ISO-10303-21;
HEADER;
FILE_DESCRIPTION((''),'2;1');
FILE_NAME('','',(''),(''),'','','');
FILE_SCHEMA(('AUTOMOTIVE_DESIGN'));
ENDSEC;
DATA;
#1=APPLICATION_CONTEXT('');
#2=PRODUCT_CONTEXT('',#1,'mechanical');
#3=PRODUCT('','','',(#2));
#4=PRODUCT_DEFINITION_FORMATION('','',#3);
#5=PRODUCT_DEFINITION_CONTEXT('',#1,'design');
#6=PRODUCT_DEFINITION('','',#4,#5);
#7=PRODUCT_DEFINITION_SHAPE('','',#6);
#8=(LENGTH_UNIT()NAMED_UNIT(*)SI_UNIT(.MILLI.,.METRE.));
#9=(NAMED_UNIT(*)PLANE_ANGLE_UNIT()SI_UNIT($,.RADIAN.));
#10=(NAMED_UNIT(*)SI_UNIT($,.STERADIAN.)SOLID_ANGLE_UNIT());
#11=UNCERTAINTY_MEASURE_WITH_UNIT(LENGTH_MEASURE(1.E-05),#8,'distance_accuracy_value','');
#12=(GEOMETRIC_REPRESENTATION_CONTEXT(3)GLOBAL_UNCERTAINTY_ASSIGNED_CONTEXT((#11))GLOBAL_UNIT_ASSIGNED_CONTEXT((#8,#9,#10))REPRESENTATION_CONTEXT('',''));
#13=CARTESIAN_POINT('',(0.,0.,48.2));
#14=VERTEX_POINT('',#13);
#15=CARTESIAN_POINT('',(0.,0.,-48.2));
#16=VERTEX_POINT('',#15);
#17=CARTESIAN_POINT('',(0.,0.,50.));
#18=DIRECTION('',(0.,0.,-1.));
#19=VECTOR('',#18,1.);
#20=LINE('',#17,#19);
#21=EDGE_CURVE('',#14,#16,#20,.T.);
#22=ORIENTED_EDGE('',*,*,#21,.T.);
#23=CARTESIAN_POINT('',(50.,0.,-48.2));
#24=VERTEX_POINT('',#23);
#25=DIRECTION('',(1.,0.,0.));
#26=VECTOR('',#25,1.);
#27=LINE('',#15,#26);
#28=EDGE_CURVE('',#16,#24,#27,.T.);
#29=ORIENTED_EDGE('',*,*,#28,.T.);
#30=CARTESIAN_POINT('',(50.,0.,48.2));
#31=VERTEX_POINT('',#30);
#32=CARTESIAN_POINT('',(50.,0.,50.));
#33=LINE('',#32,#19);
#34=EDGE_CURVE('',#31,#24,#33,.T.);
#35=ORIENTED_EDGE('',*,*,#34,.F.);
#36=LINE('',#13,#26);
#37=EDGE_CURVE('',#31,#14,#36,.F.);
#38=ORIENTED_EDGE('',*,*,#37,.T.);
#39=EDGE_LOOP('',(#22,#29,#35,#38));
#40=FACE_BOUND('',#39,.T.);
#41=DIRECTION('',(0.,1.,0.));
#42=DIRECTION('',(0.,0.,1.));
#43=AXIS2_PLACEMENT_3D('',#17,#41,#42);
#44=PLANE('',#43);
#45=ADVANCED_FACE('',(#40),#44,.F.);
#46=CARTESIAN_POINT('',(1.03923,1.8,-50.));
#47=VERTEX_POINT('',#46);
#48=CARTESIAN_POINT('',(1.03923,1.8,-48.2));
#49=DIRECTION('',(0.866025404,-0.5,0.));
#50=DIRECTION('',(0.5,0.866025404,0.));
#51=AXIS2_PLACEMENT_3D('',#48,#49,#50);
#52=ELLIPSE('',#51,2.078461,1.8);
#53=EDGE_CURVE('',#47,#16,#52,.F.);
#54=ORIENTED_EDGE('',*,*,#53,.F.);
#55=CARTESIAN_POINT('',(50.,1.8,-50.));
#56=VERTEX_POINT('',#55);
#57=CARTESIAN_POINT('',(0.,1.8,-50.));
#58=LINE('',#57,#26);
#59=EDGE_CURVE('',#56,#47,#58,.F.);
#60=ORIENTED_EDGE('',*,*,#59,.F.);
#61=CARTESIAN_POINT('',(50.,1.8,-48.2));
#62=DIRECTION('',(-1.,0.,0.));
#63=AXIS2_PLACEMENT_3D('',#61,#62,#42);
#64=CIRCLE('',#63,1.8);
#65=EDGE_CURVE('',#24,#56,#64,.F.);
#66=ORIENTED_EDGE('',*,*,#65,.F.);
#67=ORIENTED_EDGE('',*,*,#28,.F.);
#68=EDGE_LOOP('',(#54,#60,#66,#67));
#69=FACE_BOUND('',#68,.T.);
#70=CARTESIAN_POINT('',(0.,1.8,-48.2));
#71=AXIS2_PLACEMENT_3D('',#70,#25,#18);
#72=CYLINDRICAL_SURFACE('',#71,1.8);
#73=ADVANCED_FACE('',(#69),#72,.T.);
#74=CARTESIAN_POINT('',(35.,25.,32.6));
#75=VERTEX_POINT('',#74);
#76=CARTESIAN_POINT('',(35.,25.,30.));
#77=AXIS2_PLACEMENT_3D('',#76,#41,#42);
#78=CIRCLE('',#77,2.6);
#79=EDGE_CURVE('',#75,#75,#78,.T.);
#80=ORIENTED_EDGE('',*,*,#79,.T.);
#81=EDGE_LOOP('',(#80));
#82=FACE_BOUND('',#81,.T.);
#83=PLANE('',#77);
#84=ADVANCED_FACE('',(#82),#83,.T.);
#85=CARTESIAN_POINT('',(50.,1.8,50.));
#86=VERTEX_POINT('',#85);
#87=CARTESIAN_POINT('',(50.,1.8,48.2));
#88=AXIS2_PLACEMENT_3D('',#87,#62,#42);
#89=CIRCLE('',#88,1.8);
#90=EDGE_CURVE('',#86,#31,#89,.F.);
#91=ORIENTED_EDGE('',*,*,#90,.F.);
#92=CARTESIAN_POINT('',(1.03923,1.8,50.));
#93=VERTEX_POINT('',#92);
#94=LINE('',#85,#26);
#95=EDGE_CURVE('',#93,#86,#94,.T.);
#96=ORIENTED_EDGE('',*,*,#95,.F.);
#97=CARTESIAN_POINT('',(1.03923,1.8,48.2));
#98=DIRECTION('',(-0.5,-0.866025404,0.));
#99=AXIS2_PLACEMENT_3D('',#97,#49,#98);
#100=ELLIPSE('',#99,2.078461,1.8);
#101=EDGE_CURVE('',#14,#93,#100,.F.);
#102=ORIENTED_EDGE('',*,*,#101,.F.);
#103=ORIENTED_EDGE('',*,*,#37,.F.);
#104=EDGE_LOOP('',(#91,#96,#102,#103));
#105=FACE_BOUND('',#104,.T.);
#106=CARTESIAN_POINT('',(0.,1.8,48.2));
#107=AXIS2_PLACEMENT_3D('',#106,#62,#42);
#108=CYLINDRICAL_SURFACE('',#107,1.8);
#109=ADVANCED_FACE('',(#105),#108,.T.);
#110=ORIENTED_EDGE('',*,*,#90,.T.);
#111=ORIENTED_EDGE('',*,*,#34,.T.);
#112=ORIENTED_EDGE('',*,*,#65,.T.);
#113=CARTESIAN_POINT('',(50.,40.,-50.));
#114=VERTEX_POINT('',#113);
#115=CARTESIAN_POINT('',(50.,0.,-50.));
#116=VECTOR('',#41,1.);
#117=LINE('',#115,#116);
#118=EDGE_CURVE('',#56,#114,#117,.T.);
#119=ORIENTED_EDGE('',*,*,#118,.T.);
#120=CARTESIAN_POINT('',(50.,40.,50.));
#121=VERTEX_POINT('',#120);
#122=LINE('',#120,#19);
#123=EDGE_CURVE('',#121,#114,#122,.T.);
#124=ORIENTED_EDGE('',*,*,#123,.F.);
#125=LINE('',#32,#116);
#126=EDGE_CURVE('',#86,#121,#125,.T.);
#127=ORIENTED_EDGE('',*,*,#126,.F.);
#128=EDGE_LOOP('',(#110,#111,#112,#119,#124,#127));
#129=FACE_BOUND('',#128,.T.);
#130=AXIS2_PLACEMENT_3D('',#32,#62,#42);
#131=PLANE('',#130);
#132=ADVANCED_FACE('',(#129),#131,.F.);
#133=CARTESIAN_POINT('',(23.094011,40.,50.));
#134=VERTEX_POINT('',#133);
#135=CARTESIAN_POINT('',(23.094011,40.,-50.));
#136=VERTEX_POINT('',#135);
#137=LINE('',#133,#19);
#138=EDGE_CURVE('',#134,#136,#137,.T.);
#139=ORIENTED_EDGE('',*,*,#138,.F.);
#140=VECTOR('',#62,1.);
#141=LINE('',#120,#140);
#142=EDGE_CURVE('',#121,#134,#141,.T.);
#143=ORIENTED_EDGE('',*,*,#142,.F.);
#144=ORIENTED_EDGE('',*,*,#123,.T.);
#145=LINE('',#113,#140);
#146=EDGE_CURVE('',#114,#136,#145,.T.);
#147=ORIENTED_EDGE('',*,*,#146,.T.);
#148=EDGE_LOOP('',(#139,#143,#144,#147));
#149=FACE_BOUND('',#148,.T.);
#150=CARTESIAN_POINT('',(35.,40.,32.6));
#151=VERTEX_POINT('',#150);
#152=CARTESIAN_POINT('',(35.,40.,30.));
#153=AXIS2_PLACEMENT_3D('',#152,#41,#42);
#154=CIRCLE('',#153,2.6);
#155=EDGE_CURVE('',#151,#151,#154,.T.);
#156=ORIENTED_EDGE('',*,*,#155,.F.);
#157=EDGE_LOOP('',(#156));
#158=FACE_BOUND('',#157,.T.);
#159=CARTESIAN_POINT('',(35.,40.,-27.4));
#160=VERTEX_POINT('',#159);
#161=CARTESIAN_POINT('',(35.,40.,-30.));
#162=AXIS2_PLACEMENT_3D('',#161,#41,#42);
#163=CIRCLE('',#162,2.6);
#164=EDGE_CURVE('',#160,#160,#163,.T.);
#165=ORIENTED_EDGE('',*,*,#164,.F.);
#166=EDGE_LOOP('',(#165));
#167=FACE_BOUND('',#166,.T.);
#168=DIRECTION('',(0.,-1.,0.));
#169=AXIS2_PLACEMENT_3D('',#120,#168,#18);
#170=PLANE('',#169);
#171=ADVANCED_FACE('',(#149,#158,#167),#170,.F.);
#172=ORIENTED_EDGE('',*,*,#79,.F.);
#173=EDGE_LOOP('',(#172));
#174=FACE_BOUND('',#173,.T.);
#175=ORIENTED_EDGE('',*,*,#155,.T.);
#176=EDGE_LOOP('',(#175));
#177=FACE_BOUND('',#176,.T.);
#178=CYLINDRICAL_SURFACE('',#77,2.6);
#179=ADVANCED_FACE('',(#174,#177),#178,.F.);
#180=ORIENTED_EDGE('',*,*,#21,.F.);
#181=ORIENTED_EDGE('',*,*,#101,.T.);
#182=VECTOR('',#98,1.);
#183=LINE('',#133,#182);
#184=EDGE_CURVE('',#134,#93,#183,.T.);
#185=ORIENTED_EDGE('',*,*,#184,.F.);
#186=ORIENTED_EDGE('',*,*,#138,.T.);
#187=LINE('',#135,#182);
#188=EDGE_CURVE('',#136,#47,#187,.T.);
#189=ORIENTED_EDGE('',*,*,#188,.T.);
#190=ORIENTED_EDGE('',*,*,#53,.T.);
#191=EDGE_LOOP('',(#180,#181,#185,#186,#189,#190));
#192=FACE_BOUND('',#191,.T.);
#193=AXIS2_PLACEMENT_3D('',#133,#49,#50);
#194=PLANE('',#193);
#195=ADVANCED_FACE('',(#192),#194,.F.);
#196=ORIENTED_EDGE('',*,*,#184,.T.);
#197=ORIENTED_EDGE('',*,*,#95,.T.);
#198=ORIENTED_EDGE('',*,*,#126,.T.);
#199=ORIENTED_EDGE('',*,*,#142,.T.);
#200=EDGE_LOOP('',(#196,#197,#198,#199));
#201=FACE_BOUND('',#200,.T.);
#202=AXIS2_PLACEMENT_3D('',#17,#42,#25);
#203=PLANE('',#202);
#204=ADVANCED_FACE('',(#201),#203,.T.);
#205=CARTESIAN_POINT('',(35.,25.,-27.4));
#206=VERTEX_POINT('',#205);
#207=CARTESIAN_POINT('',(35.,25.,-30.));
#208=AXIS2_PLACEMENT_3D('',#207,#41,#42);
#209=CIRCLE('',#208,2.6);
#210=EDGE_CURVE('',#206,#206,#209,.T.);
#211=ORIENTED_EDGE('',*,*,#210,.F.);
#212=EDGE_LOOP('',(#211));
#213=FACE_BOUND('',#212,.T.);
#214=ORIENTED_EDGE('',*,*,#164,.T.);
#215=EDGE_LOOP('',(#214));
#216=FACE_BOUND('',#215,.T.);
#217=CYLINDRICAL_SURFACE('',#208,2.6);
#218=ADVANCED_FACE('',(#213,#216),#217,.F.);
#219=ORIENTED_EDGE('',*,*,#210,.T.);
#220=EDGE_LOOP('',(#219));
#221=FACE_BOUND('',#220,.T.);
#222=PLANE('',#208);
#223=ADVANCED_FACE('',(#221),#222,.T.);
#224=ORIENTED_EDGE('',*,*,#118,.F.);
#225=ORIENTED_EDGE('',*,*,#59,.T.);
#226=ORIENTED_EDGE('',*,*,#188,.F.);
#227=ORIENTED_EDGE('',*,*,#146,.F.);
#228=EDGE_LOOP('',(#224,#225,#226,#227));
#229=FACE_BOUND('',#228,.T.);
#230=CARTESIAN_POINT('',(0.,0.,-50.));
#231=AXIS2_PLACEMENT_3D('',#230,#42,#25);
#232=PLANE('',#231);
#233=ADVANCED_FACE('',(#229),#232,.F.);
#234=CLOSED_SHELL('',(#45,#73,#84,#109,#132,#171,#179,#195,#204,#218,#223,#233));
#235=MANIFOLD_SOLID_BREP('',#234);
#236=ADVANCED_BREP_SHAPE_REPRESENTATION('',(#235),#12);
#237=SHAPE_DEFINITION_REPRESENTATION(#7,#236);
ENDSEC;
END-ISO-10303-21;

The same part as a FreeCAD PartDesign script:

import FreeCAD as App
import Part
import Sketcher

V = App.Vector
Q = App.Units.Quantity


def edges_at(feature, points):
    """Names of the edges that pass closest to the given points."""
    edges = feature.Shape.Edges
    near = lambda p: min(range(len(edges)), key=lambda i: edges[i].distToShape(Part.Vertex(*p))[0])
    return sorted({f"Edge{near(p) + 1}" for p in points})


def add_polygon(sketch, points):
    """Adds a closed chain of lines whose ends are joined by coincident constraints."""
    first, n = sketch.GeometryCount, len(points)
    for a, b in zip(points, points[1:] + points[:1]):
        sketch.addGeometry(Part.LineSegment(App.Vector(*a, 0), App.Vector(*b, 0)), False)
    for i in range(n):
        sketch.addConstraint(Sketcher.Constraint("Coincident", first + i, 2, first + (i + 1) % n, 1))

doc = App.newDocument("Part")
body = doc.addObject("PartDesign::Body", "Body")

# Sketch on XY plane
sketch1 = body.newObject("Sketcher::SketchObject", "Sketch")
sketch1.AttachmentSupport = (doc.getObject("XY_Plane"), [""])
sketch1.MapMode = "FlatFace"
add_polygon(sketch1, [(0, 0), (50, 0), (50, 40), (23, 40)])  # lines 0-3
sketch1.addConstraint([
    Sketcher.Constraint("Horizontal", 0),
    Sketcher.Constraint("Vertical", 1),
    Sketcher.Constraint("Horizontal", 2),
    Sketcher.Constraint("Coincident", 3, 2, -1, 1),
    Sketcher.Constraint("DistanceX", 0, 1, 0, 2, 50.0),
    Sketcher.Constraint("DistanceY", 1, 1, 1, 2, 40.0),
    Sketcher.Constraint("Angle", 3, Q("-120 deg")),
])
pad1 = body.newObject("PartDesign::Pad", "Pad")
pad1.Profile = sketch1
pad1.Length = 100
pad1.Midplane = True

# Sketch on XZ plane
sketch2 = body.newObject("Sketcher::SketchObject", "Sketch001")
sketch2.AttachmentSupport = (doc.getObject("XZ_Plane"), [""])
sketch2.MapMode = "FlatFace"
sketch2.AttachmentOffset = App.Placement(V(0, 0, -40), App.Rotation())
sketch2.addGeometry([
    Part.Circle(V(35, -30, 0), V(0, 0, 1), 2.6),
    Part.Circle(V(35, 30, 0), V(0, 0, 1), 2.6),
], False)
sketch2.addConstraint([
    Sketcher.Constraint("Equal", 0, 1),
    Sketcher.Constraint("Symmetric", 0, 3, 1, 3, -1),
    Sketcher.Constraint("Diameter", 0, 5.2),
    Sketcher.Constraint("DistanceX", -1, 1, 0, 3, 35.0),
    Sketcher.Constraint("DistanceY", 0, 3, -1, 1, 30.0),
])
pocket1 = body.newObject("PartDesign::Pocket", "Pocket")
pocket1.Profile = sketch2
pocket1.Length = 15
pocket1.Reversed = True
doc.recompute()

fillet = body.newObject("PartDesign::Fillet", "Fillet")
fillet.Base = (pocket1, edges_at(pocket1, [(25, 0, 50)]))
fillet.Radius = 1.8
doc.recompute()

fillet2 = body.newObject("PartDesign::Fillet", "Fillet001")
fillet2.Base = (fillet, edges_at(fillet, [(25, 0, -50)]))
fillet2.Radius = 1.8

doc.recompute()
